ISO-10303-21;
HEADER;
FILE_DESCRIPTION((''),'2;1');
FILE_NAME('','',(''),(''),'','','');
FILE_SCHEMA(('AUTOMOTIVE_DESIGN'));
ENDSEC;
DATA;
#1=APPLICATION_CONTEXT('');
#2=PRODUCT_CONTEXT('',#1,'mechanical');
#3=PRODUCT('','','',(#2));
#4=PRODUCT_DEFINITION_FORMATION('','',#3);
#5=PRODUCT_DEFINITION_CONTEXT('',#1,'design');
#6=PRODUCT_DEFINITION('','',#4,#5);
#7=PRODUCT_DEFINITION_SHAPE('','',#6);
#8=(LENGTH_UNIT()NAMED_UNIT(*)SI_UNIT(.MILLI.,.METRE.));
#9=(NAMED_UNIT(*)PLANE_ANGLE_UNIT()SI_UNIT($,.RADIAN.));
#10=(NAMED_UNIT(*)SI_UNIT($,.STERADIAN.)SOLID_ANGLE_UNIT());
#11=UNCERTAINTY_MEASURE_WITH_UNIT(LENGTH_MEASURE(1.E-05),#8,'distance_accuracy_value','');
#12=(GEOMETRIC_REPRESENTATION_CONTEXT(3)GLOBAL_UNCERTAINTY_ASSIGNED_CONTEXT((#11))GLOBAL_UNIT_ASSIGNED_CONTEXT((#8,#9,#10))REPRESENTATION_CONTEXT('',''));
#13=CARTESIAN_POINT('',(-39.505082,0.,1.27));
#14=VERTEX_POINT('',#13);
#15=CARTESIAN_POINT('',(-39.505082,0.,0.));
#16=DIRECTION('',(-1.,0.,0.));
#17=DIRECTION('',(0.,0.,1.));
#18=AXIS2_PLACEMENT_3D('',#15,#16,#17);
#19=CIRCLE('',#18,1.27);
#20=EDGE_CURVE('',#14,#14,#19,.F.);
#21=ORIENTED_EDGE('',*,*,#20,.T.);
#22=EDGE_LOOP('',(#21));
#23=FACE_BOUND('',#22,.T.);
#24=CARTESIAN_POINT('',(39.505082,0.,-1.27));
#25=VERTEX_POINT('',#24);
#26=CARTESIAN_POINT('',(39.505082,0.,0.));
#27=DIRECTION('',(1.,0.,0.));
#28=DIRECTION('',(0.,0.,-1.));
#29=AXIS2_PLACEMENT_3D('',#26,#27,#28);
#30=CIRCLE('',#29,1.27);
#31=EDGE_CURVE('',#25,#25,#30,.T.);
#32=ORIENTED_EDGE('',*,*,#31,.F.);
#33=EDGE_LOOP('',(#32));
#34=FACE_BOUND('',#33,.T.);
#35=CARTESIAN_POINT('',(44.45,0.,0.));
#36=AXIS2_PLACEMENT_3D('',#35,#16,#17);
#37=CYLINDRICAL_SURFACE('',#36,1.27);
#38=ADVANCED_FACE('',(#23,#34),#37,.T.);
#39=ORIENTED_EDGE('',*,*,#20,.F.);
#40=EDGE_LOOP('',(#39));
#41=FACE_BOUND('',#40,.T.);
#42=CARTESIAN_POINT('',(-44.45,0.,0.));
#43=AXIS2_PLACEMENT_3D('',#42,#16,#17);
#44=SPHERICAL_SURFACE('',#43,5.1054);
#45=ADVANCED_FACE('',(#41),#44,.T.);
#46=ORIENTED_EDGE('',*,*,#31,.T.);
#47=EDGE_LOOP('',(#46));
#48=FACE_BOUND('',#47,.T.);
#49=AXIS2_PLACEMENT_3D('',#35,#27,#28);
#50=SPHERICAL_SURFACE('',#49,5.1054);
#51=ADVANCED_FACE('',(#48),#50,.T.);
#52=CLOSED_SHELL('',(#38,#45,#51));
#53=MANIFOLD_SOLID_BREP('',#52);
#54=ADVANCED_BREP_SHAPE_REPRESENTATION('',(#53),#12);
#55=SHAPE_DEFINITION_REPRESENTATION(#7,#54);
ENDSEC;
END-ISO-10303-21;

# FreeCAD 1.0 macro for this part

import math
import FreeCAD as App
import Part
import Sketcher
Q = App.Units.Quantity

doc = App.newDocument("Part")
params = doc.addObject("Spreadsheet::Sheet", "Params")
for row, (alias, value) in enumerate([
    ("sketch1_diameter", "0.1 in"),
    ("pad1_length", "3.5 in"),
    ("sketch2_radius", "0.201 in"),
    ("revolution_angle", "360 deg"),
    ("sketch3_radius", "0.201 in"),
    ("revolution2_angle", "360 deg"),
], start=1):
    params.set(f"A{row}", alias)
    params.set(f"B{row}", "=" + value)
    params.setAlias(f"B{row}", alias)

body = doc.addObject("PartDesign::Body", "Body")

sketch1 = doc.addObject("Sketcher::SketchObject", "Sketch")
body.addObject(sketch1)
sketch1.AttachmentSupport = (doc.YZ_Plane, [""])
sketch1.MapMode = "FlatFace"
sketch1.addGeometry(Part.Circle(App.Vector(0, 0, 0), App.Vector(0, 0, 1), 1.27), False)
sketch1.addConstraint([
    Sketcher.Constraint("Coincident", 0, 3, -1, 1),
    Sketcher.Constraint("Diameter", 0, Q("0.1 in")),
])
sketch1.setExpression("Constraints[1]", "Params.sketch1_diameter")
pad1 = doc.addObject("PartDesign::Pad", "Pad")
body.addObject(pad1)
pad1.Profile = sketch1
pad1.setExpression("Length", "Params.pad1_length")
pad1.Midplane = True

sketch2 = doc.addObject("Sketcher::SketchObject", "Sketch001")
body.addObject(sketch2)
sketch2.AttachmentSupport = (doc.YZ_Plane, [""])
sketch2.MapMode = "FlatFace"
sketch2.AttachmentOffset = App.Placement(App.Vector(0, 0, -1.75 * 25.4), App.Rotation())
sketch2.addGeometry([
    Part.LineSegment(App.Vector(-5.1054, 0, 0), App.Vector(5.1054, 0, 0)),
    Part.ArcOfCircle(Part.Circle(App.Vector(0, 0, 0), App.Vector(0, 0, 1), 5.1054), math.radians(180), math.radians(360)),
], False)
sketch2.addConstraint([
    Sketcher.Constraint("Coincident", 0, 1, 1, 1),
    Sketcher.Constraint("Coincident", 1, 2, 0, 2),
    Sketcher.Constraint("Horizontal", 0),
    Sketcher.Constraint("Coincident", 1, 3, -1, 1),
    Sketcher.Constraint("PointOnObject", 0, 1, -1),
    Sketcher.Constraint("Radius", 1, Q("0.201 in")),
])
sketch2.setExpression("Constraints[5]", "Params.sketch2_radius")
revolution = doc.addObject("PartDesign::Revolution", "Revolution")
body.addObject(revolution)
revolution.Profile = sketch2
revolution.ReferenceAxis = (sketch2, ["H_Axis"])
revolution.setExpression("Angle", "Params.revolution_angle")

sketch3 = doc.addObject("Sketcher::SketchObject", "Sketch002")
body.addObject(sketch3)
sketch3.AttachmentSupport = (doc.YZ_Plane, [""])
sketch3.MapMode = "FlatFace"
sketch3.AttachmentOffset = App.Placement(App.Vector(0, 0, 1.75 * 25.4), App.Rotation())
sketch3.addGeometry([
    Part.LineSegment(App.Vector(5.1054, 0, 0), App.Vector(-5.1054, 0, 0)),
    Part.ArcOfCircle(Part.Circle(App.Vector(0, 0, 0), App.Vector(0, 0, 1), 5.1054), math.radians(180), math.radians(360)),
], False)
sketch3.addConstraint([
    Sketcher.Constraint("Coincident", 0, 1, 1, 2),
    Sketcher.Constraint("Coincident", 1, 1, 0, 2),
    Sketcher.Constraint("Horizontal", 0),
    Sketcher.Constraint("Coincident", 1, 3, -1, 1),
    Sketcher.Constraint("PointOnObject", 0, 1, -1),
    Sketcher.Constraint("Radius", 1, Q("0.201 in")),
])
sketch3.setExpression("Constraints[5]", "Params.sketch3_radius")
revolution2 = doc.addObject("PartDesign::Revolution", "Revolution001")
body.addObject(revolution2)
revolution2.Profile = sketch3
revolution2.ReferenceAxis = (sketch3, ["H_Axis"])
revolution2.setExpression("Angle", "Params.revolution2_angle")

doc.recompute()
